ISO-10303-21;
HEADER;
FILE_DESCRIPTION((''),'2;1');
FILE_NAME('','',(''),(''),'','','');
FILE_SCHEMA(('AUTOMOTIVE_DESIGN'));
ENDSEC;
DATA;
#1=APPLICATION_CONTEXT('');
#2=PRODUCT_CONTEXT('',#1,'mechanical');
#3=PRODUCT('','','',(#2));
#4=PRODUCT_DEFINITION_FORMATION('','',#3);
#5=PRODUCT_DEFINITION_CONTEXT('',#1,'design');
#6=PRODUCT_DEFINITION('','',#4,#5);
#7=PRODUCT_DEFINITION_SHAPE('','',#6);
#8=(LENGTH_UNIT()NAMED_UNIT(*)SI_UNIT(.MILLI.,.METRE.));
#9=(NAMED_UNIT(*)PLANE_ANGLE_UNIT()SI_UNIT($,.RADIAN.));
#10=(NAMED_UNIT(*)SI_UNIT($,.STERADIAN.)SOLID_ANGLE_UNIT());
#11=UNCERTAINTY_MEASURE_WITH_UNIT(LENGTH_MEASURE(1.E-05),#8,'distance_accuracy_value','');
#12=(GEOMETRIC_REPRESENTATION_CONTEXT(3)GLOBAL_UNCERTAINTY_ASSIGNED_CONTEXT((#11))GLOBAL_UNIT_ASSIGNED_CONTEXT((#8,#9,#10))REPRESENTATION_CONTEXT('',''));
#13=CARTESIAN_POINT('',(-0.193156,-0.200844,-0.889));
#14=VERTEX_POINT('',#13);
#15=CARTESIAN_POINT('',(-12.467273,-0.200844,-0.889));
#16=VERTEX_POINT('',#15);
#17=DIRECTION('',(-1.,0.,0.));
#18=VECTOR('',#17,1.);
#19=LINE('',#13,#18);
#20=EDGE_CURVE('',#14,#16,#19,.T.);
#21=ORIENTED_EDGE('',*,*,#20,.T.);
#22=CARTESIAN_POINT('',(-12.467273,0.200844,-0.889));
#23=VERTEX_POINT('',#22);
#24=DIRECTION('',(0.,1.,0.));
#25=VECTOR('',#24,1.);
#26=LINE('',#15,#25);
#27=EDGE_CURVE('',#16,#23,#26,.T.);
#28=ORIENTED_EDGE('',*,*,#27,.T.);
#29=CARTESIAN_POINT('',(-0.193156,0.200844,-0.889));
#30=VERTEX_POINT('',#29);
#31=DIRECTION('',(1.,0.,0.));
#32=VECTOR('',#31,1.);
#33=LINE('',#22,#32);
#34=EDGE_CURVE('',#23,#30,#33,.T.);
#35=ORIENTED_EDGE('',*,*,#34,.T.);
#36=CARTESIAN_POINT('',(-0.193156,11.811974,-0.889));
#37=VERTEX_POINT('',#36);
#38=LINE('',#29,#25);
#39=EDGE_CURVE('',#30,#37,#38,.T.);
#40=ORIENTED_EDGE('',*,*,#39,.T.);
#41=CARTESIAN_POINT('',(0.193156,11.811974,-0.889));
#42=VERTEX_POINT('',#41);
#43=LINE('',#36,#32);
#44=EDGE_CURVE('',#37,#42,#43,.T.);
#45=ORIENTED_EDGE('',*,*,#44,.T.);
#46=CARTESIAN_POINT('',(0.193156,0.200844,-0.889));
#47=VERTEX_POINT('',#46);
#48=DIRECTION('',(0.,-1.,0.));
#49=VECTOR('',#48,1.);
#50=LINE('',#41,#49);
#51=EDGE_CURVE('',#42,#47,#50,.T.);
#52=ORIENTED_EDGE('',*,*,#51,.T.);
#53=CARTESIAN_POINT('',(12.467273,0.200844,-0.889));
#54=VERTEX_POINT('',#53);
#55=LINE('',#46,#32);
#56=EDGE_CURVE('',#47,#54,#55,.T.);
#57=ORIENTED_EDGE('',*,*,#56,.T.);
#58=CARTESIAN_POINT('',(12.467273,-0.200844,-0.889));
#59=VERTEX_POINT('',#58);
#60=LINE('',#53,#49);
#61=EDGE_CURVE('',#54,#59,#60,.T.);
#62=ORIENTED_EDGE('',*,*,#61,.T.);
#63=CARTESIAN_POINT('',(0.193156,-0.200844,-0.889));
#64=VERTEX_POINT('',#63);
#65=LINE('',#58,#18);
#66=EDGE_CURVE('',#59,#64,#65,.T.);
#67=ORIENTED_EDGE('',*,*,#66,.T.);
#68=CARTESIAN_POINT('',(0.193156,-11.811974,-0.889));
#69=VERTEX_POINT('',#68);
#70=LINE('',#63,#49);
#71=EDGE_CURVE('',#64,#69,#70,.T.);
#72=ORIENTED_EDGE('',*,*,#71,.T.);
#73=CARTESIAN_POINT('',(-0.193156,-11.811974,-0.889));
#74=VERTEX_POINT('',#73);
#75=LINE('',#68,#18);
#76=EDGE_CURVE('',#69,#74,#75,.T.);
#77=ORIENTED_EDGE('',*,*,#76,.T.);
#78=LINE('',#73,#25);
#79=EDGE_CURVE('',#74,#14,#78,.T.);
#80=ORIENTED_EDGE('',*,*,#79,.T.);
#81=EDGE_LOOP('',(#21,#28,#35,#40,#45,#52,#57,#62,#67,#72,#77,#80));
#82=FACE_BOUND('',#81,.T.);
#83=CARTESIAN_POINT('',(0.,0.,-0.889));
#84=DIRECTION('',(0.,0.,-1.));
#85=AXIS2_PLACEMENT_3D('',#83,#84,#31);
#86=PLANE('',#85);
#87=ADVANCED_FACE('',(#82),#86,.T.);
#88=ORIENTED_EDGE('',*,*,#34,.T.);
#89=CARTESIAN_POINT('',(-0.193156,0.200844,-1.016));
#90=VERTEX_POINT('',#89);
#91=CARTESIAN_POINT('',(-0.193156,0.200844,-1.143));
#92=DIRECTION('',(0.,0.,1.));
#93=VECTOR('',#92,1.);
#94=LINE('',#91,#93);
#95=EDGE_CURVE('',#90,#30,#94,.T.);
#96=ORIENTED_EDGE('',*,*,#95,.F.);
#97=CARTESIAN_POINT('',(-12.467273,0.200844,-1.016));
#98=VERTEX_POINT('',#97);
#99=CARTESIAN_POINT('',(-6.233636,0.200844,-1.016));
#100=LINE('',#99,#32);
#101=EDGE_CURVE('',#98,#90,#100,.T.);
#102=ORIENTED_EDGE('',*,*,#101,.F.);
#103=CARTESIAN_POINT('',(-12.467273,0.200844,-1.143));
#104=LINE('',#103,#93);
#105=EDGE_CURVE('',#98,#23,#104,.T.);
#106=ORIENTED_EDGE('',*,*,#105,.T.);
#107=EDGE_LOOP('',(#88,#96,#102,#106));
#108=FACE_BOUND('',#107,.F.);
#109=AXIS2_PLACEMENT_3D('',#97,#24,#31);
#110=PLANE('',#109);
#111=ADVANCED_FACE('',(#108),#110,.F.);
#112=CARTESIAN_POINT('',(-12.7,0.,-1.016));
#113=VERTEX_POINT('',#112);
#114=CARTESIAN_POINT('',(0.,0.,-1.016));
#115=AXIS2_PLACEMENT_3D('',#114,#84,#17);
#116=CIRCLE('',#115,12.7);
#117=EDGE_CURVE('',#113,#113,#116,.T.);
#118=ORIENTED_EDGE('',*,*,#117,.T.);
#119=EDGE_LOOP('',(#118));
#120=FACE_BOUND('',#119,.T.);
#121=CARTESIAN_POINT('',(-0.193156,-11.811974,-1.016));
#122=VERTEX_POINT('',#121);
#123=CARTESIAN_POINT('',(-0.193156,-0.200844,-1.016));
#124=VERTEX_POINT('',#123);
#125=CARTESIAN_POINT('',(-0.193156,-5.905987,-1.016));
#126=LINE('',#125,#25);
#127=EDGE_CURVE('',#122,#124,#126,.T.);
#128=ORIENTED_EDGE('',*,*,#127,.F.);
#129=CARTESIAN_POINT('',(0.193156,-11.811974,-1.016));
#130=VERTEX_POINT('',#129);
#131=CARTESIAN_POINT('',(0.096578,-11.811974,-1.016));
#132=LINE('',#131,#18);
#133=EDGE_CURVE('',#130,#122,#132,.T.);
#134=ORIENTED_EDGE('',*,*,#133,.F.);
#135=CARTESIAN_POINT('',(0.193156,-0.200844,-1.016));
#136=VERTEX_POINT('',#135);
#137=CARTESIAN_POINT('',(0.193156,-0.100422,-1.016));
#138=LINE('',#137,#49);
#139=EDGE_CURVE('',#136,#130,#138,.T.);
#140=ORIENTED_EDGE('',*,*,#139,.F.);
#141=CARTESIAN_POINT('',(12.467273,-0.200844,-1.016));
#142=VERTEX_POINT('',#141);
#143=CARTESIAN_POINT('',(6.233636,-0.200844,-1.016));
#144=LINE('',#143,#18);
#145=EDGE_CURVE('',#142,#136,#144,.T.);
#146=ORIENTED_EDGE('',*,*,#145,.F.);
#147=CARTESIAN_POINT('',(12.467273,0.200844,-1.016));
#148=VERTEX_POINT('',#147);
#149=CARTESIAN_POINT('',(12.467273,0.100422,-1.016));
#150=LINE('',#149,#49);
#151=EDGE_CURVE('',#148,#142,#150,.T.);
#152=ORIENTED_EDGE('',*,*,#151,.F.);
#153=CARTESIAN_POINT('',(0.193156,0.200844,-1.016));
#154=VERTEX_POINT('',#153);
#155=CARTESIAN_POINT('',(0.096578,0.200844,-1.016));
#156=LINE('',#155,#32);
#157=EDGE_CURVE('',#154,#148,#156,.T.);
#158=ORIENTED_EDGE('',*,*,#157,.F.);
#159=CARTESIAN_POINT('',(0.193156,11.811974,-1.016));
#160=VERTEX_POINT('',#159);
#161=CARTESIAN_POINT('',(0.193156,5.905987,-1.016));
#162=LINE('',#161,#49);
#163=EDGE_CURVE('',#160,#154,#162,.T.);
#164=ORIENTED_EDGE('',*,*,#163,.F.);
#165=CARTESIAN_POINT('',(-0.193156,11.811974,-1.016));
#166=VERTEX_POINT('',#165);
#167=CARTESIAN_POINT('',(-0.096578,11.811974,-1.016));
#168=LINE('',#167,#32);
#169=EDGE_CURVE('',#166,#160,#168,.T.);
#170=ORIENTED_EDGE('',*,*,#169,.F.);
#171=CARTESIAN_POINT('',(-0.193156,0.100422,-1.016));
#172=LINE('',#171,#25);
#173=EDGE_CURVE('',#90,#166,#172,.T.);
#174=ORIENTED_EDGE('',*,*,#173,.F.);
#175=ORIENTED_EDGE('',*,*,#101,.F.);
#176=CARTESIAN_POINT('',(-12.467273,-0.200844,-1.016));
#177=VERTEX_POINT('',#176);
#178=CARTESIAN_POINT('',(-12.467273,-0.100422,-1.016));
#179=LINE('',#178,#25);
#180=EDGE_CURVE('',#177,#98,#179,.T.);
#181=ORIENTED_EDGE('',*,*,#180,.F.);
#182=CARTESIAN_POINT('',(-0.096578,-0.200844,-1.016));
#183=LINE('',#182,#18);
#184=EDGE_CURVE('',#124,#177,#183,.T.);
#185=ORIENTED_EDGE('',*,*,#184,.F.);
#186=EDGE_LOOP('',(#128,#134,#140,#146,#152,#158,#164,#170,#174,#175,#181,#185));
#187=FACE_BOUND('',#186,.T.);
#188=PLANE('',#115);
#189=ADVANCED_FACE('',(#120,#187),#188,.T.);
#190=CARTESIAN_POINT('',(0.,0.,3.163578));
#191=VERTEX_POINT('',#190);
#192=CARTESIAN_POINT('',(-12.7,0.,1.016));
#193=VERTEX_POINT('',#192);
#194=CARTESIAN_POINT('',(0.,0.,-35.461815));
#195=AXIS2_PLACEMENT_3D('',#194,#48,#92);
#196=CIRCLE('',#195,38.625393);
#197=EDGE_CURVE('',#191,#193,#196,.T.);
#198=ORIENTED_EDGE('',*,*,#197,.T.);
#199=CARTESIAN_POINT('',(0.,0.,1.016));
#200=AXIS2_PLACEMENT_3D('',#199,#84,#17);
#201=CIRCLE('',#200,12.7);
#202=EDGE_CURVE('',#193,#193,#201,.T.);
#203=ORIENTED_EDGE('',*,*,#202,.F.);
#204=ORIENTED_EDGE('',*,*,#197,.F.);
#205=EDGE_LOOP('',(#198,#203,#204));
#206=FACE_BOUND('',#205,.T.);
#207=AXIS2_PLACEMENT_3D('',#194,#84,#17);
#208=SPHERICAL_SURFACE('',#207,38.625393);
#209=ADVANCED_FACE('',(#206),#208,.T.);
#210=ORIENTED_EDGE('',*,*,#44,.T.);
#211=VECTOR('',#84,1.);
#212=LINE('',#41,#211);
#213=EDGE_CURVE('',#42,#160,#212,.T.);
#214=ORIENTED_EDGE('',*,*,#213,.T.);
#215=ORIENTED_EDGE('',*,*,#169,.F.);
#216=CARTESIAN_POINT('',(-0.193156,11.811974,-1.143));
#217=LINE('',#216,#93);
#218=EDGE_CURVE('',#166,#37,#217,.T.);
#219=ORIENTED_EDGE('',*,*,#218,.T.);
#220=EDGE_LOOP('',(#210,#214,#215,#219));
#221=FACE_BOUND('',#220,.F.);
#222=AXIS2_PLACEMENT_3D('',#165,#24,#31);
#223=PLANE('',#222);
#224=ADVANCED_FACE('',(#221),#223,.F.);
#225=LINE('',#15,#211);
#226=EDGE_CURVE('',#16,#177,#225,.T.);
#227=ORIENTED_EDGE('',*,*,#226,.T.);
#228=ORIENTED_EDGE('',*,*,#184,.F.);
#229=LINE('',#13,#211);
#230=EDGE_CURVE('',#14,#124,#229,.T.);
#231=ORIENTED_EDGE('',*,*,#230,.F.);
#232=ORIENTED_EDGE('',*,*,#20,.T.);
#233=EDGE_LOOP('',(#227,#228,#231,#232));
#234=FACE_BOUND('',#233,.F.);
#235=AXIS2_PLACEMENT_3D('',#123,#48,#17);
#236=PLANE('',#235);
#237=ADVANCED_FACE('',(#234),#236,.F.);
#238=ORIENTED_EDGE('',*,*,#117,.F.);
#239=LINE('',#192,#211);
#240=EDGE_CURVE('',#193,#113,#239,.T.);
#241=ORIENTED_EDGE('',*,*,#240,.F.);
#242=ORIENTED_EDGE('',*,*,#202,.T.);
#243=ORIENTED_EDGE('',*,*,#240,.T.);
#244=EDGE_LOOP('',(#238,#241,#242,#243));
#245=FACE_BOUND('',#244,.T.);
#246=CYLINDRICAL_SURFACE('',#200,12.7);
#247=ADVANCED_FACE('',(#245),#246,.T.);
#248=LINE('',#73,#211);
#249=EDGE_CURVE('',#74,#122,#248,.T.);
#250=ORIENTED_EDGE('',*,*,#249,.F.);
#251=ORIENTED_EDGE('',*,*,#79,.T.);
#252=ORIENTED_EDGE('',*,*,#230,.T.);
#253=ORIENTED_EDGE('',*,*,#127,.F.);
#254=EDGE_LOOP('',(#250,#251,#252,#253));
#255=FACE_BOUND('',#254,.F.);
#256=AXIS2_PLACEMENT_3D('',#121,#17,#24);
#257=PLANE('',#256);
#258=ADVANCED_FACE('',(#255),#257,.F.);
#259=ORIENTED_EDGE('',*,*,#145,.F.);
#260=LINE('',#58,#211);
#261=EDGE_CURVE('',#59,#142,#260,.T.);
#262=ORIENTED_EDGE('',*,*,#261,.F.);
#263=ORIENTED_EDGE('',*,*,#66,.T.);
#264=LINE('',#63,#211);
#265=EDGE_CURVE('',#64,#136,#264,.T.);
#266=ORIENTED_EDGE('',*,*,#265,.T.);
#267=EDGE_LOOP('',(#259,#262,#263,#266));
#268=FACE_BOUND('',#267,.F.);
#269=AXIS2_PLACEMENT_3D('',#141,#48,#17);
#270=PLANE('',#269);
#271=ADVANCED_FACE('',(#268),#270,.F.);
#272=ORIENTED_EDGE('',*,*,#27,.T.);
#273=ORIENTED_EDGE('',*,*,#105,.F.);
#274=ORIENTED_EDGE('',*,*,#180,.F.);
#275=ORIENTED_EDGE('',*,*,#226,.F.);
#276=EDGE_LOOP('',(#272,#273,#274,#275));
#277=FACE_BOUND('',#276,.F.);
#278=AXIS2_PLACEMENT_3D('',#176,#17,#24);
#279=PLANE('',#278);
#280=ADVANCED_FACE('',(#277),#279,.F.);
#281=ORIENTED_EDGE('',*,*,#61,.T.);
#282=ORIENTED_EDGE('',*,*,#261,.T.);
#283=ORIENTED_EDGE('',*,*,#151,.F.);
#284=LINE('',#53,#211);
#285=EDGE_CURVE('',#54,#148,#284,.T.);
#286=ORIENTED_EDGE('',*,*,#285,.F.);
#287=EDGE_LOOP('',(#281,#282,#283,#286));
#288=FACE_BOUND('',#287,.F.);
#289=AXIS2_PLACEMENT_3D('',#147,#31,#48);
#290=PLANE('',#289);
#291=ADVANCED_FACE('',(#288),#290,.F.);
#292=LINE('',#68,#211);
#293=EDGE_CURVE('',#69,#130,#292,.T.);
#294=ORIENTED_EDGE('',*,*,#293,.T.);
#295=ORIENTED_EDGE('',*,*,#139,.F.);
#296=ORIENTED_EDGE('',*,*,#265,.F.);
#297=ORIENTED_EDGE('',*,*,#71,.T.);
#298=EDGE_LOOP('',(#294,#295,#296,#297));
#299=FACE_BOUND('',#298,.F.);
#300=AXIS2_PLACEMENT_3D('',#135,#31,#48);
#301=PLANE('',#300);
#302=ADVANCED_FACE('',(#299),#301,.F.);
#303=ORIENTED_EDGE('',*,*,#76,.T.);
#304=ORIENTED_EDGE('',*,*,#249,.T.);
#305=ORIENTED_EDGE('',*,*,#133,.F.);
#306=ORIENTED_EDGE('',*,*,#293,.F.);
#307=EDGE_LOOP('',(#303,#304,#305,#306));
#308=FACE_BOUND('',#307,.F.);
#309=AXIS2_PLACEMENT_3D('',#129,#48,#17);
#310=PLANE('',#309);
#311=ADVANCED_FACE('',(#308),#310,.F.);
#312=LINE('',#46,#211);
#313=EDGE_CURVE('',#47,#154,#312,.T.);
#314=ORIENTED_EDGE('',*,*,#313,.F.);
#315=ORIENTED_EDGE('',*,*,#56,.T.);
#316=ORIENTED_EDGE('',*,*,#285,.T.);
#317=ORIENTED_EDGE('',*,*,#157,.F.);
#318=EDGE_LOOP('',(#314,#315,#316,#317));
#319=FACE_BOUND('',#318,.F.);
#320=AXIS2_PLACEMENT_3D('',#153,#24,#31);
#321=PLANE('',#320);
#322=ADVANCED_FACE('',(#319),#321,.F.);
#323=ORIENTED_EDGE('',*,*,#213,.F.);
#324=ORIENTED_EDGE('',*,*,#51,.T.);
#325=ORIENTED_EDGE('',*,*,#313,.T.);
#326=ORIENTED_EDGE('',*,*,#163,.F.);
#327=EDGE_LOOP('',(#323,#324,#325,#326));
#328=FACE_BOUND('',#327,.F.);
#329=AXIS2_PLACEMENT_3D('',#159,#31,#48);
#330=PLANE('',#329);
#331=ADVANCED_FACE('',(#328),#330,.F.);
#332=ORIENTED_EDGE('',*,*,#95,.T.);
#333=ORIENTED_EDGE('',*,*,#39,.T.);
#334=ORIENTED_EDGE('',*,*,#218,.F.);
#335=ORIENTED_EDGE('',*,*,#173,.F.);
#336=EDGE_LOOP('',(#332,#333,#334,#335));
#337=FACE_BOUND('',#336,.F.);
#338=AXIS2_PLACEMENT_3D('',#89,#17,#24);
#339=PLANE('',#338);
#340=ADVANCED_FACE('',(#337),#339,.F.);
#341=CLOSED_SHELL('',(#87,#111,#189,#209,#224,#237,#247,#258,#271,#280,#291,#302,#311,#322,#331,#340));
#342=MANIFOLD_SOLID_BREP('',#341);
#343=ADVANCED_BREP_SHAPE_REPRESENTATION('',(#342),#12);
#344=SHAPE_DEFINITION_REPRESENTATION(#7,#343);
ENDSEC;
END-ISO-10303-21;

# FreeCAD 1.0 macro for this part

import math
import FreeCAD as App
import Part
import Sketcher
Q = App.Units.Quantity

doc = App.newDocument("Part")
params = doc.addObject("Spreadsheet::Sheet", "Params")
for row, (alias, value) in enumerate([
    ("sketch1_width", "0.5 in"),
    ("sketch1_height", "0.08 in"),
    ("revolution_angle", "360 deg"),
    ("pocket1_length", "0.01 in"),
], start=1):
    params.set(f"A{row}", alias)
    params.set(f"B{row}", "=" + value)
    params.setAlias(f"B{row}", alias)

body = doc.addObject("PartDesign::Body", "Body")

# Sketch on XZ plane
sketch1 = doc.addObject("Sketcher::SketchObject", "Sketch")
body.addObject(sketch1)
sketch1.AttachmentSupport = (doc.XZ_Plane, [""])
sketch1.MapMode = "FlatFace"
sketch1.addGeometry([
    Part.LineSegment(App.Vector(-12.7, 1, 0), App.Vector(-12.7, -1, 0)),
    Part.LineSegment(App.Vector(-12.7, -1, 0), App.Vector(0, -1, 0)),
    Part.LineSegment(App.Vector(0, -1, 0), App.Vector(0, 3.2, 0)),
    Part.ArcOfCircle(Part.Circle(App.Vector(0, -35.5, 0), App.Vector(0, 0, 1), 38.6), math.radians(90), math.radians(109.2)),
], False)
sketch1.addConstraint([
    Sketcher.Constraint("Coincident", 0, 2, 1, 1),
    Sketcher.Constraint("Coincident", 1, 2, 2, 1),
    Sketcher.Constraint("Coincident", 2, 2, 3, 1),
    Sketcher.Constraint("Coincident", 3, 2, 0, 1),
    Sketcher.Constraint("Vertical", 0),
    Sketcher.Constraint("Horizontal", 1),
    Sketcher.Constraint("Vertical", 2),
    Sketcher.Constraint("PointOnObject", 3, 3, -2),
    Sketcher.Constraint("PointOnObject", 1, 2, -2),
    Sketcher.Constraint("DistanceX", 1, 1, 1, 2, Q("0.5 in")),
    Sketcher.Constraint("DistanceY", 0, 2, 0, 1, Q("0.08 in")),
    Sketcher.Constraint("DistanceY", 0, 2, -1, 1, Q("0.04 in")),
    Sketcher.Constraint("Radius", 3, Q("38.625393 mm")),
])
sketch1.setExpression("Constraints[9]", "Params.sketch1_width")
sketch1.setExpression("Constraints[10]", "Params.sketch1_height")
revolution = doc.addObject("PartDesign::Revolution", "Revolution")
body.addObject(revolution)
revolution.Profile = sketch1
revolution.ReferenceAxis = (sketch1, ["V_Axis"])
revolution.setExpression("Angle", "Params.revolution_angle")

# Sketch on XY plane
sketch2 = doc.addObject("Sketcher::SketchObject", "Sketch001")
body.addObject(sketch2)
sketch2.AttachmentSupport = (doc.XY_Plane, [""])
sketch2.MapMode = "FlatFace"
sketch2.AttachmentOffset = App.Placement(App.Vector(0, 0, -0.04 * 25.4), App.Rotation())
sketch2.addGeometry([
    Part.LineSegment(App.Vector(-0.19, 11.81, 0), App.Vector(0.19, 11.81, 0)),  # 0
    Part.LineSegment(App.Vector(0.19, 11.81, 0), App.Vector(0.19, 0.2, 0)),  # 1
    Part.LineSegment(App.Vector(0.19, 0.2, 0), App.Vector(12.47, 0.2, 0)),  # 2
    Part.LineSegment(App.Vector(12.47, 0.2, 0), App.Vector(12.47, -0.2, 0)),  # 3
    Part.LineSegment(App.Vector(12.47, -0.2, 0), App.Vector(0.19, -0.2, 0)),  # 4
    Part.LineSegment(App.Vector(0.19, -0.2, 0), App.Vector(0.19, -11.81, 0)),  # 5
    Part.LineSegment(App.Vector(0.19, -11.81, 0), App.Vector(-0.19, -11.81, 0)),  # 6
    Part.LineSegment(App.Vector(-0.19, -11.81, 0), App.Vector(-0.19, -0.2, 0)),  # 7
    Part.LineSegment(App.Vector(-0.19, -0.2, 0), App.Vector(-12.47, -0.2, 0)),  # 8
    Part.LineSegment(App.Vector(-12.47, -0.2, 0), App.Vector(-12.47, 0.2, 0)),  # 9
    Part.LineSegment(App.Vector(-12.47, 0.2, 0), App.Vector(-0.19, 0.2, 0)),  # 10
    Part.LineSegment(App.Vector(-0.19, 0.2, 0), App.Vector(-0.19, 11.81, 0)),  # 11
], False)
sketch2.addConstraint([
    Sketcher.Constraint("Coincident", 0, 2, 1, 1),
    Sketcher.Constraint("Coincident", 1, 2, 2, 1),
    Sketcher.Constraint("Coincident", 2, 2, 3, 1),
    Sketcher.Constraint("Coincident", 3, 2, 4, 1),
    Sketcher.Constraint("Coincident", 4, 2, 5, 1),
    Sketcher.Constraint("Coincident", 5, 2, 6, 1),
    Sketcher.Constraint("Coincident", 6, 2, 7, 1),
    Sketcher.Constraint("Coincident", 7, 2, 8, 1),
    Sketcher.Constraint("Coincident", 8, 2, 9, 1),
    Sketcher.Constraint("Coincident", 9, 2, 10, 1),
    Sketcher.Constraint("Coincident", 10, 2, 11, 1),
    Sketcher.Constraint("Coincident", 11, 2, 0, 1),
    Sketcher.Constraint("Horizontal", 0),
    Sketcher.Constraint("Vertical", 1),
    Sketcher.Constraint("Horizontal", 2),
    Sketcher.Constraint("Vertical", 3),
    Sketcher.Constraint("Horizontal", 4),
    Sketcher.Constraint("Vertical", 5),
    Sketcher.Constraint("Horizontal", 6),
    Sketcher.Constraint("Vertical", 7),
    Sketcher.Constraint("Horizontal", 8),
    Sketcher.Constraint("Vertical", 9),
    Sketcher.Constraint("Horizontal", 10),
    Sketcher.Constraint("Vertical", 11),
    Sketcher.Constraint("Symmetric", 0, 2, 6, 2, -1, 1),
    Sketcher.Constraint("Symmetric", 2, 2, 8, 2, -1, 1),
    Sketcher.Constraint("Symmetric", 4, 2, 10, 2, -1, 1),
    Sketcher.Constraint("Symmetric", 4, 2, 7, 2, -2),
    Sketcher.Constraint("DistanceY", 1, 2, 1, 1, Q("11.61113 mm")),
    Sketcher.Constraint("DistanceX", 0, 1, 0, 2, Q("0.386312 mm")),
    Sketcher.Constraint("DistanceX", 2, 1, 2, 2, Q("12.274116 mm")),
    Sketcher.Constraint("DistanceY", 3, 2, 3, 1, Q("0.401688 mm")),
])
pocket1 = doc.addObject("PartDesign::Pocket", "Pocket")
body.addObject(pocket1)
pocket1.Profile = sketch2
pocket1.setExpression("Length", "Params.pocket1_length")
pocket1.Midplane = True

doc.recompute()
